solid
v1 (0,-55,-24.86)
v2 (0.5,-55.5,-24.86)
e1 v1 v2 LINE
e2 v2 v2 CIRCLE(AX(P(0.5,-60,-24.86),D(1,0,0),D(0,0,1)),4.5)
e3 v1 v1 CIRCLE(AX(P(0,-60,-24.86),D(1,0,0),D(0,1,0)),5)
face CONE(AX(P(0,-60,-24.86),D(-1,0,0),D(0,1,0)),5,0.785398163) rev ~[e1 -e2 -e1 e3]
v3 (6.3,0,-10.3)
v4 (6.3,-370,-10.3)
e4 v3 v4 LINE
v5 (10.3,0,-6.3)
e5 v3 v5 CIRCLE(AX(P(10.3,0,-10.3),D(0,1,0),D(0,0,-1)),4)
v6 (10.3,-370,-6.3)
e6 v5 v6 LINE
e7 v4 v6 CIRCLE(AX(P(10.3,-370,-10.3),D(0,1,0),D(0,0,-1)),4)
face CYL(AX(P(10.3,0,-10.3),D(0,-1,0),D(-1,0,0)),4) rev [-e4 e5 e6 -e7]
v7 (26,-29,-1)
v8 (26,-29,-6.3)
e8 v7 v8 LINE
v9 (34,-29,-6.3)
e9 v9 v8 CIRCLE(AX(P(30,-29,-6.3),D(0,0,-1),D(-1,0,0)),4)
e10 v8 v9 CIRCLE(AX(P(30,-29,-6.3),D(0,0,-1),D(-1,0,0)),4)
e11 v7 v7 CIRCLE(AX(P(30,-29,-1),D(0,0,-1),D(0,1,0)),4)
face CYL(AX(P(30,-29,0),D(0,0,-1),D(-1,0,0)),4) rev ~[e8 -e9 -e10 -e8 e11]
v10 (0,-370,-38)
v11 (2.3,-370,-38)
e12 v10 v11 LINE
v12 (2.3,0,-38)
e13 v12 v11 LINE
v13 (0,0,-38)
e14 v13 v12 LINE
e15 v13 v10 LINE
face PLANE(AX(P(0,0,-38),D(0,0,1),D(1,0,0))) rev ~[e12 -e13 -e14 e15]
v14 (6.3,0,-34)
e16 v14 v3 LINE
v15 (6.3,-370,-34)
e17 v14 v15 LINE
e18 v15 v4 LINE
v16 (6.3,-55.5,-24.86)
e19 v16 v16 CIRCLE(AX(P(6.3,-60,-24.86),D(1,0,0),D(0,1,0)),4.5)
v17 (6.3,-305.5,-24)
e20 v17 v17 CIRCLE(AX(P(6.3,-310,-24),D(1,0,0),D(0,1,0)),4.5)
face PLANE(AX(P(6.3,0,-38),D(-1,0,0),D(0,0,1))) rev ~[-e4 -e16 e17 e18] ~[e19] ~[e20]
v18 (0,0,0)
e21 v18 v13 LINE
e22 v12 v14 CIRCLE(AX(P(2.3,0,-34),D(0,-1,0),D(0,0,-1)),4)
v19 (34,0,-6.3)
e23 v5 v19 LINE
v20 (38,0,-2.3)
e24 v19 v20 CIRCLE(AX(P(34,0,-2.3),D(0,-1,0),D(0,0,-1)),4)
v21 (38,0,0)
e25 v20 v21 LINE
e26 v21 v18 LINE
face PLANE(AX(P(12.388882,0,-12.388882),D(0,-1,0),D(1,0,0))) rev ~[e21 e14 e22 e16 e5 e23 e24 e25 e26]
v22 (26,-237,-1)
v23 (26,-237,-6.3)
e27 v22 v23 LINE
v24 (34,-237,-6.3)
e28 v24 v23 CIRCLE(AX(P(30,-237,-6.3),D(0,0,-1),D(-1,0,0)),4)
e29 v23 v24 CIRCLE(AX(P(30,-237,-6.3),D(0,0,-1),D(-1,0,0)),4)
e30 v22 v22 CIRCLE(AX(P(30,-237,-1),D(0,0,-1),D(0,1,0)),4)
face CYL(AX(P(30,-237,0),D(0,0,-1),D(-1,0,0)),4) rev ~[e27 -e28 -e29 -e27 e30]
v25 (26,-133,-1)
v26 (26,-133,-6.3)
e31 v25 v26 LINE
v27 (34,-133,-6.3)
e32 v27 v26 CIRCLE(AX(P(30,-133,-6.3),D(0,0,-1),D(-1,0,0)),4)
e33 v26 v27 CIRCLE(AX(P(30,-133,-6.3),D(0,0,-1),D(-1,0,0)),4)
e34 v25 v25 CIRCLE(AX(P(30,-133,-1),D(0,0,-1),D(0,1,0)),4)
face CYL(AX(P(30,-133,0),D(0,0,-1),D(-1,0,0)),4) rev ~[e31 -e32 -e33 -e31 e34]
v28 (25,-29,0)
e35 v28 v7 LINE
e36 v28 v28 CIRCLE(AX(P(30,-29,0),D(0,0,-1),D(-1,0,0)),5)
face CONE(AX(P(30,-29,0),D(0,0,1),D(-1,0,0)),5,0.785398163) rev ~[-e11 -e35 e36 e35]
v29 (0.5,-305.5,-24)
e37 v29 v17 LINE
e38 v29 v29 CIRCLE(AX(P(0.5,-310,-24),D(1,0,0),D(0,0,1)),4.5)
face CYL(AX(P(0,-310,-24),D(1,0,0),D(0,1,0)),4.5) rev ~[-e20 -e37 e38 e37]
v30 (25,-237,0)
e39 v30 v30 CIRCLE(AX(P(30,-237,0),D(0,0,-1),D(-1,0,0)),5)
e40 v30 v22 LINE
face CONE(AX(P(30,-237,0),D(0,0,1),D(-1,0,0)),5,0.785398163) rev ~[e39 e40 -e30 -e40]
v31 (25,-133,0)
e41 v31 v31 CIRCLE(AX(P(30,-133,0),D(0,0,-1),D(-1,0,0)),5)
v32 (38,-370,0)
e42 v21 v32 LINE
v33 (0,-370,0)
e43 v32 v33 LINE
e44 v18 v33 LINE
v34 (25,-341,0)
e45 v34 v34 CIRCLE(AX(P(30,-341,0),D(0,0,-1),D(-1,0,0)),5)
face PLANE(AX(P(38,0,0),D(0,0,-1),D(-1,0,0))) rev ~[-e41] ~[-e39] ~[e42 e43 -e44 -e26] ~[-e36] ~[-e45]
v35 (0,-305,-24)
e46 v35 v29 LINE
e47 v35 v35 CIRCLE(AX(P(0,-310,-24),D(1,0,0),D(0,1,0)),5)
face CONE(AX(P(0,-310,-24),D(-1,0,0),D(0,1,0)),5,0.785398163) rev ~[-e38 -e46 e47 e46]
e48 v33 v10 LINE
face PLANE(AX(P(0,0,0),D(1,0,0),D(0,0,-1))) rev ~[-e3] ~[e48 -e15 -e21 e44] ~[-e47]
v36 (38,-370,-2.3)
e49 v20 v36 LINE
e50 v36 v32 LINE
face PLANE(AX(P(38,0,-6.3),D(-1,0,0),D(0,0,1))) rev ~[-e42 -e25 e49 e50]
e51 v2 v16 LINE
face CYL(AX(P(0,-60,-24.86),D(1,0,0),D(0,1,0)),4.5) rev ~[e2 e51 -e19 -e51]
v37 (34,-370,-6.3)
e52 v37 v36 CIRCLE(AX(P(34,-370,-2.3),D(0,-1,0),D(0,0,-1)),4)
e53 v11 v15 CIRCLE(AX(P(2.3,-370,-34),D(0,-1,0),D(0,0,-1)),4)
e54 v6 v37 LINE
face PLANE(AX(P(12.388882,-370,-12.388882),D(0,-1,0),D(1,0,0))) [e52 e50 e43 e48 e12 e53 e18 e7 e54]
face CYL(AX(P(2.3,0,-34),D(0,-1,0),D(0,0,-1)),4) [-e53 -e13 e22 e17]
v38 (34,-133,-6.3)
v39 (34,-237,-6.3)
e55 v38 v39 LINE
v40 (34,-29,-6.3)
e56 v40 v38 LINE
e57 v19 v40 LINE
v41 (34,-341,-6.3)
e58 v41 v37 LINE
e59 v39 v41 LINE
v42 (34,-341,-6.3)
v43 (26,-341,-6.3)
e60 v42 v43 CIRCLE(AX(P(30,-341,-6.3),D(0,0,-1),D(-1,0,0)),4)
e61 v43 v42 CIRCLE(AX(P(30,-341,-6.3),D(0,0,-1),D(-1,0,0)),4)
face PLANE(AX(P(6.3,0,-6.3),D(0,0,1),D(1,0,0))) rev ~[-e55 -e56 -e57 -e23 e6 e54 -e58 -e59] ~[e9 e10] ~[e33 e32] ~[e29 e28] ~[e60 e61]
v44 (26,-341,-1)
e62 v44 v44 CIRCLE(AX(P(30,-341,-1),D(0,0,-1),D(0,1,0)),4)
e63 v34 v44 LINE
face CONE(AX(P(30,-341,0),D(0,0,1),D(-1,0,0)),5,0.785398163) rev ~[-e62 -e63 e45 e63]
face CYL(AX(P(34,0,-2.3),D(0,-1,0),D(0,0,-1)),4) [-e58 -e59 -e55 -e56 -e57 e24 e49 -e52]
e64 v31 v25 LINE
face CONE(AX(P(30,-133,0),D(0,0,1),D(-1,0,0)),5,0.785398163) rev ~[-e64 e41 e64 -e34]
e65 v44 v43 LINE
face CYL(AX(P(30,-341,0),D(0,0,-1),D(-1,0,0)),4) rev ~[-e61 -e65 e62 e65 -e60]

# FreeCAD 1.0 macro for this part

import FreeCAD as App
import Part
import Sketcher


def edges_at(feature, points):
    """Names of the edges that pass closest to the given points."""
    edges = feature.Shape.Edges
    near = lambda p: min(range(len(edges)), key=lambda i: edges[i].distToShape(Part.Vertex(*p))[0])
    return sorted({f"Edge{near(p) + 1}" for p in points})

doc = App.newDocument("Part")
params = doc.addObject("Spreadsheet::Sheet", "Params")
for row, (alias, value) in enumerate([
    ("sketch1_width", "38 mm"),
    ("sketch1_width2", "6.3 mm"),
    ("pad1_length", "370 mm"),
    ("fillet_radius", "4 mm"),
    ("fillet2_radius", "4 mm"),
    ("sketch2_diameter", "8 mm"),
    ("hole_diameter", "8 mm"),
    ("hole_csink_diameter", "10 mm"),
    ("sketch3_diameter", "9 mm"),
    ("hole2_diameter", "9 mm"),
    ("hole2_csink_diameter", "10 mm"),
], start=1):
    params.set(f"A{row}", alias)
    params.set(f"B{row}", "=" + value)
    params.setAlias(f"B{row}", alias)

body = doc.addObject("PartDesign::Body", "Body")

# Sketch on XZ plane
sketch1 = body.newObject("Sketcher::SketchObject", "Sketch")
sketch1.AttachmentSupport = (doc.getObject("XZ_Plane"), [""])
sketch1.MapMode = "FlatFace"
sketch1.addGeometry(Part.LineSegment(App.Vector(38, 0, 0), App.Vector(0, 0, 0)), False)
sketch1.addGeometry(Part.LineSegment(App.Vector(0, 0, 0), App.Vector(0, -38, 0)), False)
sketch1.addGeometry(Part.LineSegment(App.Vector(0, -38, 0), App.Vector(6.3, -38, 0)), False)
sketch1.addGeometry(Part.LineSegment(App.Vector(6.3, -38, 0), App.Vector(6.3, -6.3, 0)), False)
sketch1.addGeometry(Part.LineSegment(App.Vector(6.3, -6.3, 0), App.Vector(38, -6.3, 0)), False)
sketch1.addGeometry(Part.LineSegment(App.Vector(38, -6.3, 0), App.Vector(38, 0, 0)), False)
sketch1.addConstraint(Sketcher.Constraint("Coincident", 0, 2, 1, 1))
sketch1.addConstraint(Sketcher.Constraint("Coincident", 1, 2, 2, 1))
sketch1.addConstraint(Sketcher.Constraint("Coincident", 2, 2, 3, 1))
sketch1.addConstraint(Sketcher.Constraint("Coincident", 3, 2, 4, 1))
sketch1.addConstraint(Sketcher.Constraint("Coincident", 4, 2, 5, 1))
sketch1.addConstraint(Sketcher.Constraint("Coincident", 5, 2, 0, 1))
sketch1.addConstraint(Sketcher.Constraint("Horizontal", 0))
sketch1.addConstraint(Sketcher.Constraint("Vertical", 1))
sketch1.addConstraint(Sketcher.Constraint("Horizontal", 2))
sketch1.addConstraint(Sketcher.Constraint("Vertical", 3))
sketch1.addConstraint(Sketcher.Constraint("Horizontal", 4))
sketch1.addConstraint(Sketcher.Constraint("Vertical", 5))
sketch1.addConstraint(Sketcher.Constraint("Coincident", 0, 2, -1, 1))
sketch1.addConstraint(Sketcher.Constraint("Equal", 0, 1))
sketch1.addConstraint(Sketcher.Constraint("Equal", 4, 3))
sketch1.addConstraint(Sketcher.Constraint("DistanceX", 0, 2, 0, 1, 38.0))
sketch1.addConstraint(Sketcher.Constraint("DistanceX", 2, 1, 2, 2, 6.3))
sketch1.setExpression("Constraints[15]", "Params.sketch1_width")
sketch1.setExpression("Constraints[16]", "Params.sketch1_width2")
pad1 = body.newObject("PartDesign::Pad", "Pad")
pad1.Profile = sketch1
pad1.setExpression("Length", "Params.pad1_length")
doc.recompute()

fillet = body.newObject("PartDesign::Fillet", "Fillet")
fillet.Base = (pad1, edges_at(pad1, [(6.3, -185, -38), (38, -185, -6.3)]))
fillet.setExpression("Radius", "Params.fillet_radius")
doc.recompute()

fillet2 = body.newObject("PartDesign::Fillet", "Fillet001")
fillet2.Base = (fillet, edges_at(fillet, [(6.3, -185, -6.3)]))
fillet2.setExpression("Radius", "Params.fillet2_radius")

# Sketch on XY plane
sketch2 = body.newObject("Sketcher::SketchObject", "Sketch001")
sketch2.AttachmentSupport = (doc.getObject("XY_Plane"), [""])
sketch2.MapMode = "FlatFace"
sketch2.addGeometry(Part.Circle(App.Vector(30, -341, 0), App.Vector(0, 0, 1), 4), False)
sketch2.addGeometry(Part.Circle(App.Vector(30, -237, 0), App.Vector(0, 0, 1), 4), False)
sketch2.addGeometry(Part.Circle(App.Vector(30, -133, 0), App.Vector(0, 0, 1), 4), False)
sketch2.addGeometry(Part.Circle(App.Vector(30, -29, 0), App.Vector(0, 0, 1), 4), False)
sketch2.addConstraint(Sketcher.Constraint("Equal", 0, 1))
sketch2.addConstraint(Sketcher.Constraint("Equal", 1, 2))
sketch2.addConstraint(Sketcher.Constraint("Equal", 2, 3))
sketch2.addConstraint(Sketcher.Constraint("Vertical", 0, 3, 1, 3))
sketch2.addConstraint(Sketcher.Constraint("Vertical", 1, 3, 2, 3))
sketch2.addConstraint(Sketcher.Constraint("Vertical", 2, 3, 3, 3))
sketch2.addConstraint(Sketcher.Constraint("Diameter", 0, 8.0))
sketch2.addConstraint(Sketcher.Constraint("DistanceX", -1, 1, 0, 3, 30.0))
sketch2.addConstraint(Sketcher.Constraint("DistanceY", 0, 3, -1, 1, 341.0))
sketch2.addConstraint(Sketcher.Constraint("DistanceY", 1, 3, -1, 1, 237.0))
sketch2.addConstraint(Sketcher.Constraint("DistanceY", 2, 3, -1, 1, 133.0))
sketch2.addConstraint(Sketcher.Constraint("DistanceY", 3, 3, -1, 1, 29.0))
sketch2.setExpression("Constraints[6]", "Params.sketch2_diameter")
doc.recompute()
hole = body.newObject("PartDesign::Hole", "Hole")
hole.Profile = sketch2
hole.ThreadType = "None"
hole.setExpression("Diameter", "Params.hole_diameter")
hole.DepthType = "ThroughAll"
hole.HoleCutType = "Countersink"
hole.setExpression("HoleCutDiameter", "Params.hole_csink_diameter")
hole.HoleCutCountersinkAngle = 90

# Sketch on YZ plane
sketch3 = body.newObject("Sketcher::SketchObject", "Sketch002")
sketch3.AttachmentSupport = (doc.getObject("YZ_Plane"), [""])
sketch3.MapMode = "FlatFace"
sketch3.addGeometry(Part.Circle(App.Vector(-310, -24, 0), App.Vector(0, 0, 1), 4.5), False)
sketch3.addGeometry(Part.Circle(App.Vector(-60, -24.86, 0), App.Vector(0, 0, 1), 4.5), False)
sketch3.addConstraint(Sketcher.Constraint("Equal", 0, 1))
sketch3.addConstraint(Sketcher.Constraint("Diameter", 0, 9.0))
sketch3.addConstraint(Sketcher.Constraint("DistanceX", 0, 3, -1, 1, 310.0))
sketch3.addConstraint(Sketcher.Constraint("DistanceY", 0, 3, -1, 1, 24.0))
sketch3.addConstraint(Sketcher.Constraint("DistanceX", 1, 3, -1, 1, 60.0))
sketch3.addConstraint(Sketcher.Constraint("DistanceY", 1, 3, -1, 1, 24.86))
sketch3.setExpression("Constraints[1]", "Params.sketch3_diameter")
doc.recompute()
hole2 = body.newObject("PartDesign::Hole", "Hole001")
hole2.Profile = sketch3
hole2.ThreadType = "None"
hole2.setExpression("Diameter", "Params.hole2_diameter")
hole2.DepthType = "ThroughAll"
hole2.HoleCutType = "Countersink"
hole2.setExpression("HoleCutDiameter", "Params.hole2_csink_diameter")
hole2.HoleCutCountersinkAngle = 90
hole2.Reversed = True

doc.recompute()
